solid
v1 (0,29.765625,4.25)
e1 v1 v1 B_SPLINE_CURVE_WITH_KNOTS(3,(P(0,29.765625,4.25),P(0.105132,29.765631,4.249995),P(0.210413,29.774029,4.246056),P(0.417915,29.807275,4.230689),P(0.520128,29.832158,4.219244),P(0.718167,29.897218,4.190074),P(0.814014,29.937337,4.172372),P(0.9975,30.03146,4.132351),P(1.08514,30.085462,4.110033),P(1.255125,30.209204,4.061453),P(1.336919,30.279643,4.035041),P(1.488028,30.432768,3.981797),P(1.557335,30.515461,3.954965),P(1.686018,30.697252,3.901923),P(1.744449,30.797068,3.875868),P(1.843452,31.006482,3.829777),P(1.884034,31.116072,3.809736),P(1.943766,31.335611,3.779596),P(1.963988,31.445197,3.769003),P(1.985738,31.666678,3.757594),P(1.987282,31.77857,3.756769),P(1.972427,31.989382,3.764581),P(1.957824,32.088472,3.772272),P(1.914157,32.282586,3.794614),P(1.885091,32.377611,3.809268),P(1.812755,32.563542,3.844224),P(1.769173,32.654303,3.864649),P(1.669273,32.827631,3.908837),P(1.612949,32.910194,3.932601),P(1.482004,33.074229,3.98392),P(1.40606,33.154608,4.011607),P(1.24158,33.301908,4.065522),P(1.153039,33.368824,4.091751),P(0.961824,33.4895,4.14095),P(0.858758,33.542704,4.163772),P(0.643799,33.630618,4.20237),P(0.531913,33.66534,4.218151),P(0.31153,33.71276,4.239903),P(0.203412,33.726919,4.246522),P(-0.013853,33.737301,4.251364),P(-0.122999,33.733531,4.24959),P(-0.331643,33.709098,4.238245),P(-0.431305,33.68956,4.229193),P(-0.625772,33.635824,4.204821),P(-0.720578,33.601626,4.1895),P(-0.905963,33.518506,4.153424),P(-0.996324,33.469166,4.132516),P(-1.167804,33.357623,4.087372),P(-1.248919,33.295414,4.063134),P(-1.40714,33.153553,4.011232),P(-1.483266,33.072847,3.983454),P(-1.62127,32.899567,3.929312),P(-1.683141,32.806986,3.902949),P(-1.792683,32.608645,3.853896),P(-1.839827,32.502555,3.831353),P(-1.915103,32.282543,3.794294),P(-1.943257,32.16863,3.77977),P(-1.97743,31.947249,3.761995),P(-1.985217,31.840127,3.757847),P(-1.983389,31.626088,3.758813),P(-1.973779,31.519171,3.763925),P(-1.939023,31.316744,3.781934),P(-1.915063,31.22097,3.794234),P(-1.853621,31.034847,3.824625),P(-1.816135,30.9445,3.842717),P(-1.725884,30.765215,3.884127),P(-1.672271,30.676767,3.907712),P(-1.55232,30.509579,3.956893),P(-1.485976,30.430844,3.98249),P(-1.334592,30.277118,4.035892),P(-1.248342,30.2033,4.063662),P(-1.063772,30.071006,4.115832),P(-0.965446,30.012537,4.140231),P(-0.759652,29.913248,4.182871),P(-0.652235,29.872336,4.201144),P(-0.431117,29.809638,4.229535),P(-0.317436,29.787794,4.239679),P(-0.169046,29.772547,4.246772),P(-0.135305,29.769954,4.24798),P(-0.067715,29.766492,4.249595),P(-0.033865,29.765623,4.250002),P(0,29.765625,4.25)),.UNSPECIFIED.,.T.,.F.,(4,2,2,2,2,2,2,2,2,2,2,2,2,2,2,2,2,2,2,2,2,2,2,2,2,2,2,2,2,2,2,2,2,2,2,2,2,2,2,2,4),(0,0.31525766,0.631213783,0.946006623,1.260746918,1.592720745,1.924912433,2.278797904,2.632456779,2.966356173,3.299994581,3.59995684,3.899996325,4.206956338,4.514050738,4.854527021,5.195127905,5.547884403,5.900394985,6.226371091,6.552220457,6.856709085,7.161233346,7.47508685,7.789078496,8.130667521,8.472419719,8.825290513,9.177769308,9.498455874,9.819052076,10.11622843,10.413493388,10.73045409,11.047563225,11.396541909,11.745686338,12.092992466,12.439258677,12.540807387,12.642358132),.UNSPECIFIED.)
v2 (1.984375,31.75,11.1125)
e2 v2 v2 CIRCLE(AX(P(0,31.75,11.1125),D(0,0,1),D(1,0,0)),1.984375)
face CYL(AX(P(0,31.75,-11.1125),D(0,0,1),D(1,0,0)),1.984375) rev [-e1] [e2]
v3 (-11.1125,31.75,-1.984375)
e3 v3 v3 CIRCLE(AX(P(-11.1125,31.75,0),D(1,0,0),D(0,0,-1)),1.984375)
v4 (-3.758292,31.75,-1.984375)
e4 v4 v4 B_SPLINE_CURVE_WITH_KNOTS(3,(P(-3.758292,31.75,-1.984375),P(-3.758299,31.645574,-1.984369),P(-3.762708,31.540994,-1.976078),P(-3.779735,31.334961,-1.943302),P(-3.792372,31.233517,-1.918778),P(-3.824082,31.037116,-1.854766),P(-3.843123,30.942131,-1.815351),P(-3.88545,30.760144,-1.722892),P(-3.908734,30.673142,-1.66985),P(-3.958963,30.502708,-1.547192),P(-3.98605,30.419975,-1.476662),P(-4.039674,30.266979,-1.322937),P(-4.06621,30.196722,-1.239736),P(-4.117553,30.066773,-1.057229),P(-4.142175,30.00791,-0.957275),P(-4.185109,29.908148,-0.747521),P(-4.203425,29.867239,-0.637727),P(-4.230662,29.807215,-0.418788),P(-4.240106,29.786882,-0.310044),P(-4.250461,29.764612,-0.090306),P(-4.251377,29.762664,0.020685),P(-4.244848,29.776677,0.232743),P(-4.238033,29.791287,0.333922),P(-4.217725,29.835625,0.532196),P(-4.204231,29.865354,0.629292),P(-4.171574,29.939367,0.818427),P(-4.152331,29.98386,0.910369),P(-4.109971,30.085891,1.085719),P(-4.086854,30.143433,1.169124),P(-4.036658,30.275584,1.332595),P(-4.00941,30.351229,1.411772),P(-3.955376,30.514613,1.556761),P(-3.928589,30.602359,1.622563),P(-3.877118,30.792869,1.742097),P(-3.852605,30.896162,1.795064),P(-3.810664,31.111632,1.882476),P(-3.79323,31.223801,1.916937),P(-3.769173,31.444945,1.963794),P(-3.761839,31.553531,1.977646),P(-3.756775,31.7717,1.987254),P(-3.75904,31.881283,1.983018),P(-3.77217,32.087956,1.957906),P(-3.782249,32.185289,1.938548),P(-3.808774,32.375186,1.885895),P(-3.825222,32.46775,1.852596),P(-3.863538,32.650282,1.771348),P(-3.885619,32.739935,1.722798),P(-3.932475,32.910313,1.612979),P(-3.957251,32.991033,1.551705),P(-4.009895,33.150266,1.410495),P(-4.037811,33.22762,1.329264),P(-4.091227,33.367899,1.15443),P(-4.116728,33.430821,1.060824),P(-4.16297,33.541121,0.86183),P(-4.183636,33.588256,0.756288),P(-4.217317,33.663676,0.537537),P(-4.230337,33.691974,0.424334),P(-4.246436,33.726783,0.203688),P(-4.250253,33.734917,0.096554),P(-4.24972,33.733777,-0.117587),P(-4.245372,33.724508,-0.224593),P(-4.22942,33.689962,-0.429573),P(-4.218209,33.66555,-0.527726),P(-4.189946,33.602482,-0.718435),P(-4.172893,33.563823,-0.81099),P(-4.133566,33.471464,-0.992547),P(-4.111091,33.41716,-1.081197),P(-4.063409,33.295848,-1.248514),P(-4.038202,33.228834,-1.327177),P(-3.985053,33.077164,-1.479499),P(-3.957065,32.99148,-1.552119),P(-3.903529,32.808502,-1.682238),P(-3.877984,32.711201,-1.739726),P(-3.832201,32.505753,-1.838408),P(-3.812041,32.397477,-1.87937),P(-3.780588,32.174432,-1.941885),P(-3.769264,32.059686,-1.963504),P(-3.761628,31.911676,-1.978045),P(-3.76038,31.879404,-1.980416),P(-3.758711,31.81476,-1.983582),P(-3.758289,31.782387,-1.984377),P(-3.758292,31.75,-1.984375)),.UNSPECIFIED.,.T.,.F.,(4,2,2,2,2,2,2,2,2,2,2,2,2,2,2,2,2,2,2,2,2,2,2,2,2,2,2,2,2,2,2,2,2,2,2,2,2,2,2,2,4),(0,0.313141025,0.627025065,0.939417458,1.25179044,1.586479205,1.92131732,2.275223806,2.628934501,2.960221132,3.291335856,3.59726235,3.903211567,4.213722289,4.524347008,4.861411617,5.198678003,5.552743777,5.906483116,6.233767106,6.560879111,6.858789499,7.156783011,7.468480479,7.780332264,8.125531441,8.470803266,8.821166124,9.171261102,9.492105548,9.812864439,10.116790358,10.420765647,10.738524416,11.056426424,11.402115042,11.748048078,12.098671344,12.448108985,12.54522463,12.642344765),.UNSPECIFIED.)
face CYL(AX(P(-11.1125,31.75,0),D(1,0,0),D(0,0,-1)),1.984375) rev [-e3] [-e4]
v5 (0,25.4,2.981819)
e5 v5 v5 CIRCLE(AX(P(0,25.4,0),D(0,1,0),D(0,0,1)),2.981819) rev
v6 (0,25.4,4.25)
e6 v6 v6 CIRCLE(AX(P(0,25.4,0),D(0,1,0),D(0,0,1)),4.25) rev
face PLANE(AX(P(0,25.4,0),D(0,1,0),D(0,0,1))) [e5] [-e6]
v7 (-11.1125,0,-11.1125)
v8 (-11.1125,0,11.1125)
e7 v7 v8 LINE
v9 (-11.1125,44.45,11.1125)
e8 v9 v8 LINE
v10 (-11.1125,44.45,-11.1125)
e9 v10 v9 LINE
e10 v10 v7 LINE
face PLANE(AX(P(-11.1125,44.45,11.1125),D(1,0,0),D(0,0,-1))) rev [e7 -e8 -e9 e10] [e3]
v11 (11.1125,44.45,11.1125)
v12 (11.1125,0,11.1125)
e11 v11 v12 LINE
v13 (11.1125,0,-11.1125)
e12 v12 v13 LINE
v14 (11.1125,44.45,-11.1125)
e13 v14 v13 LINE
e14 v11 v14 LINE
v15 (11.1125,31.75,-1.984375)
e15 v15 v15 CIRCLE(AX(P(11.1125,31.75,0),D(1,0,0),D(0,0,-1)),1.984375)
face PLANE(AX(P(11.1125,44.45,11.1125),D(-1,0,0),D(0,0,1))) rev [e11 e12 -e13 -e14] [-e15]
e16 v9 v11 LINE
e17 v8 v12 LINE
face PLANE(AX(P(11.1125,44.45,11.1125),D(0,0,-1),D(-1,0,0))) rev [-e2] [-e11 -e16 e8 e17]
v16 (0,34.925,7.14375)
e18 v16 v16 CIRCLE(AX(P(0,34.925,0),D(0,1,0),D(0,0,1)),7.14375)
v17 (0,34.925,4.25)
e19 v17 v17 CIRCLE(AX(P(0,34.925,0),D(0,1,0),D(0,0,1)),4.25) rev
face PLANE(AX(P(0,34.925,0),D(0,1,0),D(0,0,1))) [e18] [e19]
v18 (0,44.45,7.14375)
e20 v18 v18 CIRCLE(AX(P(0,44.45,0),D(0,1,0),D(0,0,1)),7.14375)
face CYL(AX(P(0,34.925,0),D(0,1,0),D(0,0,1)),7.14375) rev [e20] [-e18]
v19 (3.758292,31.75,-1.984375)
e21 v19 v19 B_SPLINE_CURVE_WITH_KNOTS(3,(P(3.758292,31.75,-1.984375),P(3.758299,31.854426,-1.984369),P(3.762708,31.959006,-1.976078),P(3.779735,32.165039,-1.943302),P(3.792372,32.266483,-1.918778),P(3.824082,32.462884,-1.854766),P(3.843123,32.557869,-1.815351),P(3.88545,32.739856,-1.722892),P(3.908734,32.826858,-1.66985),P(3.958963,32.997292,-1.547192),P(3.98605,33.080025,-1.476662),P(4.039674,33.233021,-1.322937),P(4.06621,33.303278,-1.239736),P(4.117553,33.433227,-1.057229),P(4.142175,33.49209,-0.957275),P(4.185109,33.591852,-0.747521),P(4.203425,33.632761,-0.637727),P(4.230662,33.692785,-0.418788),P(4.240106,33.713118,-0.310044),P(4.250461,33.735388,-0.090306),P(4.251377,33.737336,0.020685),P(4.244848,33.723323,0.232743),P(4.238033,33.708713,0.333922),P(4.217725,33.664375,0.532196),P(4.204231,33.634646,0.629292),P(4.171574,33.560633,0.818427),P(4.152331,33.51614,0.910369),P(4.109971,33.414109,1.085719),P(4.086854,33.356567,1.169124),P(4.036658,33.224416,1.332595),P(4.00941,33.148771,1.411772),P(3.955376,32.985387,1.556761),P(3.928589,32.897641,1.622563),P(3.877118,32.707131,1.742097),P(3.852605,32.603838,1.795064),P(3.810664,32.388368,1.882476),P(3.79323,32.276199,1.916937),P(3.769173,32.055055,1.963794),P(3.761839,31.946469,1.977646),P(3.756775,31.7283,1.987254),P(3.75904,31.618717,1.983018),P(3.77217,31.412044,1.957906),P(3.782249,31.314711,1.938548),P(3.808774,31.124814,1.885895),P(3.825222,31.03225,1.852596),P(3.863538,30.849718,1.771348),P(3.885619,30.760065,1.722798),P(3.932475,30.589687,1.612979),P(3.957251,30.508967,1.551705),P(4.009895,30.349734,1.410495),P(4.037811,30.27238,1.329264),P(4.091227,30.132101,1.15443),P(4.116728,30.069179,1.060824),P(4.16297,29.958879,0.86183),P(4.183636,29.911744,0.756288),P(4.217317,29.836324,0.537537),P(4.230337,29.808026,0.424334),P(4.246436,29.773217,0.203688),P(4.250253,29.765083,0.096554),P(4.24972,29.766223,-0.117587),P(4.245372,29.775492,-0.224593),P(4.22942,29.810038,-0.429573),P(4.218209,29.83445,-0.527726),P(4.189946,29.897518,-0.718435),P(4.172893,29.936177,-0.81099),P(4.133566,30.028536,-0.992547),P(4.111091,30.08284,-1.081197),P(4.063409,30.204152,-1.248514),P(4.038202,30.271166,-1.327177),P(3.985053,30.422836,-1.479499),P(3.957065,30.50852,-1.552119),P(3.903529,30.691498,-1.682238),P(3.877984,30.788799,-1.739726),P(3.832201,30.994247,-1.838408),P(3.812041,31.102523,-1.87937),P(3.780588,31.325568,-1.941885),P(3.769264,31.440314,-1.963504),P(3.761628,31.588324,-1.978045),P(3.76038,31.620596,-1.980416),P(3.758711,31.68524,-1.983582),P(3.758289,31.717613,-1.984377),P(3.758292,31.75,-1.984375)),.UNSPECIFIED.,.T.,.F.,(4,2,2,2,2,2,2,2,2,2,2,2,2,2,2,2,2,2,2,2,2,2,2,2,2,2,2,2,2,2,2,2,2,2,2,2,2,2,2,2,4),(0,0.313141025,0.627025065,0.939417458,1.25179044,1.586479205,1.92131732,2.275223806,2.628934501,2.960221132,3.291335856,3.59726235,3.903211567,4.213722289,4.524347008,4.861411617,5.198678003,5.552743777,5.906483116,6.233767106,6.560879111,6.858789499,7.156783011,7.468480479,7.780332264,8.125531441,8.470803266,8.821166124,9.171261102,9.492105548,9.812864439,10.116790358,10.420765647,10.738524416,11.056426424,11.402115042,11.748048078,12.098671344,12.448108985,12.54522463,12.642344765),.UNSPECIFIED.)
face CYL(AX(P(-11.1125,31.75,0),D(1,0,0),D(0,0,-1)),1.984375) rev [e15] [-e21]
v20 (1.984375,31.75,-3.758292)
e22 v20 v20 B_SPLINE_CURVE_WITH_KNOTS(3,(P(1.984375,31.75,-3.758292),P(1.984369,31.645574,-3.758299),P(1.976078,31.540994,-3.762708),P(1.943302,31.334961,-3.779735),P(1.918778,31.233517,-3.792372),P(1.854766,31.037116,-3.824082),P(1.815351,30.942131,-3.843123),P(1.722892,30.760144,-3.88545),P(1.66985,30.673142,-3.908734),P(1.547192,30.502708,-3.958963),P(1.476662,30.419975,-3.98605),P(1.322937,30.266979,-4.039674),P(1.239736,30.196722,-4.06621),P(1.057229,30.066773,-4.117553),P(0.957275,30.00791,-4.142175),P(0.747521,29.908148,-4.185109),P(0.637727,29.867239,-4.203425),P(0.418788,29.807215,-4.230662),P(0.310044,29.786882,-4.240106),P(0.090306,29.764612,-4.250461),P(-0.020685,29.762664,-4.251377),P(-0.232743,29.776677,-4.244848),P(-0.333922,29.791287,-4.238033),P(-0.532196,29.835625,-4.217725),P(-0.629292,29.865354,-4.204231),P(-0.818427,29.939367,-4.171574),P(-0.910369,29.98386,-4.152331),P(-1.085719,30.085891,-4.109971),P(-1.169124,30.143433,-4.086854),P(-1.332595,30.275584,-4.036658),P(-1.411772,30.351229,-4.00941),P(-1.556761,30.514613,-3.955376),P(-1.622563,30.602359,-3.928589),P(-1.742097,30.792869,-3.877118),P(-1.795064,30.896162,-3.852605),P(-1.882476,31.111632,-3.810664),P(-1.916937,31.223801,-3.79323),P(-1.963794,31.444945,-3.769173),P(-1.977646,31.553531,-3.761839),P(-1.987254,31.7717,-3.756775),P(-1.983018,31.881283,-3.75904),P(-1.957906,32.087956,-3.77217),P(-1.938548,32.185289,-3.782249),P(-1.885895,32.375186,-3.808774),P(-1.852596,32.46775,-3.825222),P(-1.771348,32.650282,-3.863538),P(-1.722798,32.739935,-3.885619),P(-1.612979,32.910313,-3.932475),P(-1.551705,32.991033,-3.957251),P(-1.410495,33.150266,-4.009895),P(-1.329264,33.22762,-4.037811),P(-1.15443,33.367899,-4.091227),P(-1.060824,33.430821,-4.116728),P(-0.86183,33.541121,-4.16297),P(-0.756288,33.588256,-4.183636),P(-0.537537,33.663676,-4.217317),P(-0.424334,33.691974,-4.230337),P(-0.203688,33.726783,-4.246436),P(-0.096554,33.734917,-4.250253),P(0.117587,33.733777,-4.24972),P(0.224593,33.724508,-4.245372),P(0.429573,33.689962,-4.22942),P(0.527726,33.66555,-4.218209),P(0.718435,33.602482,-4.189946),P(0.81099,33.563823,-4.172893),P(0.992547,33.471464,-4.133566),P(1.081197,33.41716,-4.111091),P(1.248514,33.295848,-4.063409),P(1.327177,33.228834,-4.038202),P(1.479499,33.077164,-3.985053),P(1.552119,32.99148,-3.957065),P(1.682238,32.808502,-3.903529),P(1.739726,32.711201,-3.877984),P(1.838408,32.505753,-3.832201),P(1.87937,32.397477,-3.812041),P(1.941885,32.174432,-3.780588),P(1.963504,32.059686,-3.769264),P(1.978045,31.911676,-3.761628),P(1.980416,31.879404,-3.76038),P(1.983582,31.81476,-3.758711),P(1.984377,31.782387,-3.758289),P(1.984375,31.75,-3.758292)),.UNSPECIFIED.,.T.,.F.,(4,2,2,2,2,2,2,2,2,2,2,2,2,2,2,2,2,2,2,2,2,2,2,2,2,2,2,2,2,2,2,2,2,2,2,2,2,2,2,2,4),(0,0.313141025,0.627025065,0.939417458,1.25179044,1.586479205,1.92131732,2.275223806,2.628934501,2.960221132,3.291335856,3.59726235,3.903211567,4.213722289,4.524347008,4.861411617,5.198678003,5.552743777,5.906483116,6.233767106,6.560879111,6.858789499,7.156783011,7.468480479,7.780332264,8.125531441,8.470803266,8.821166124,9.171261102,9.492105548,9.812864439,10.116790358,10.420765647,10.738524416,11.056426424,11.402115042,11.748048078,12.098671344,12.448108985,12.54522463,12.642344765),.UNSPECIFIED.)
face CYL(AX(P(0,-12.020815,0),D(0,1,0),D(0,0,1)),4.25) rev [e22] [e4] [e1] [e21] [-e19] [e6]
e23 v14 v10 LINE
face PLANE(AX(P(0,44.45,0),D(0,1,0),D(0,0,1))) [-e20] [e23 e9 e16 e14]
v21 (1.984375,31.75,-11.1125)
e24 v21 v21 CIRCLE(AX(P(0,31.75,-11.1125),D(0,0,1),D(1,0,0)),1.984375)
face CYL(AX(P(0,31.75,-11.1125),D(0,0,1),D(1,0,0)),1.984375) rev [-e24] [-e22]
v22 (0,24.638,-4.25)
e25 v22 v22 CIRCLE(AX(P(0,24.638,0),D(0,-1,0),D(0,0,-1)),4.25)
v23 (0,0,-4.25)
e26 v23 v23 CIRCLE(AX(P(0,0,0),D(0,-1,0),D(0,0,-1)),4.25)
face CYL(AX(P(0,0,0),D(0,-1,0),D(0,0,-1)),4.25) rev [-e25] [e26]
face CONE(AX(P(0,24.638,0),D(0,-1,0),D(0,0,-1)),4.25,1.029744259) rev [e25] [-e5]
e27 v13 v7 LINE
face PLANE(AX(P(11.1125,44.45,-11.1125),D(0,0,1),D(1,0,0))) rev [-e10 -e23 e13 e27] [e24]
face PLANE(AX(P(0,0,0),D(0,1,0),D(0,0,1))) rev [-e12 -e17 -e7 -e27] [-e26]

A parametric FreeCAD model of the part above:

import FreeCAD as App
import Part
import Sketcher
from FreeCAD import Vector
Q = App.Units.Quantity

doc = App.newDocument("Part")
params = doc.addObject("Spreadsheet::Sheet", "Params")
for row, (alias, value) in enumerate([
    ("sketch1_width", "0.875 in"),
    ("pad1_length", "1.75 in"),
    ("hole_diameter", "8.5 mm"),
    ("hole_depth", "0.97 in"),
    ("pocket1_length", "0.75 in"),
    ("sketch4_diameter", "0.5625 in"),
    ("pocket2_length", "0.375 in"),
    ("sketch5_diameter", "0.15625 in"),
    ("sketch6_diameter", "0.15625 in"),
], start=1):
    params.set(f"A{row}", alias)
    params.set(f"B{row}", "=" + value)
    params.setAlias(f"B{row}", alias)

body = doc.addObject("PartDesign::Body", "Body")

# Sketch on XZ plane
sketch1 = doc.addObject("Sketcher::SketchObject", "Sketch")
body.addObject(sketch1)
sketch1.AttachmentSupport = (doc.XZ_Plane, [""])
sketch1.MapMode = "FlatFace"
sketch1.addGeometry([
    Part.LineSegment(Vector(-11.1125, -11.1125, 0), Vector(-11.1125, 11.1125, 0)),
    Part.LineSegment(Vector(-11.1125, 11.1125, 0), Vector(11.1125, 11.1125, 0)),
    Part.LineSegment(Vector(11.1125, 11.1125, 0), Vector(11.1125, -11.1125, 0)),
    Part.LineSegment(Vector(11.1125, -11.1125, 0), Vector(-11.1125, -11.1125, 0)),
], False)
sketch1.addConstraint([
    Sketcher.Constraint("Coincident", 0, 2, 1, 1),
    Sketcher.Constraint("Coincident", 1, 2, 2, 1),
    Sketcher.Constraint("Coincident", 2, 2, 3, 1),
    Sketcher.Constraint("Coincident", 3, 2, 0, 1),
    Sketcher.Constraint("Vertical", 0),
    Sketcher.Constraint("Horizontal", 1),
    Sketcher.Constraint("Vertical", 2),
    Sketcher.Constraint("Horizontal", 3),
    Sketcher.Constraint("Symmetric", 0, 2, 2, 2, -1, 1),
    Sketcher.Constraint("Equal", 3, 0),
    Sketcher.Constraint("DistanceX", 1, 1, 1, 2, Q("0.875 in")),
])
sketch1.setExpression("Constraints[10]", "Params.sketch1_width")
pad1 = doc.addObject("PartDesign::Pad", "Pad")
body.addObject(pad1)
pad1.Profile = sketch1
pad1.setExpression("Length", "Params.pad1_length")
pad1.Reversed = True

# Sketch on XZ plane
sketch2 = doc.addObject("Sketcher::SketchObject", "Sketch001")
body.addObject(sketch2)
sketch2.AttachmentSupport = (doc.XZ_Plane, [""])
sketch2.MapMode = "FlatFace"
sketch2.addGeometry(Part.Circle(Vector(0, 0, 0), Vector(0, 0, 1), 4.25), False)
sketch2.addConstraint([
    Sketcher.Constraint("Coincident", 0, 3, -1, 1),
    Sketcher.Constraint("Diameter", 0, Q("8.5 mm")),
])
doc.recompute()
hole = doc.addObject("PartDesign::Hole", "Hole")
body.addObject(hole)
hole.Profile = sketch2
hole.ThreadType = "None"
hole.setExpression("Diameter", "Params.hole_diameter")
hole.DepthType = "Dimension"
hole.setExpression("Depth", "Params.hole_depth")
hole.DrillPoint = "Angled"
hole.DrillPointAngle = 118

# Sketch on XZ plane
sketch3 = doc.addObject("Sketcher::SketchObject", "Sketch002")
body.addObject(sketch3)
sketch3.AttachmentSupport = (doc.XZ_Plane, [""])
sketch3.MapMode = "FlatFace"
sketch3.AttachmentOffset = App.Placement(Vector(0, 0, -1.75 * 25.4), App.Rotation())
sketch3.addGeometry(Part.Circle(Vector(0, 0, 0), Vector(0, 0, 1), 4.25), False)
sketch3.addConstraint([
    Sketcher.Constraint("Coincident", 0, 3, -1, 1),
    Sketcher.Constraint("Diameter", 0, Q("8.5 mm")),
])
pocket1 = doc.addObject("PartDesign::Pocket", "Pocket")
body.addObject(pocket1)
pocket1.Profile = sketch3
pocket1.setExpression("Length", "Params.pocket1_length")
pocket1.Reversed = True

# Sketch on XZ plane
sketch4 = doc.addObject("Sketcher::SketchObject", "Sketch003")
body.addObject(sketch4)
sketch4.AttachmentSupport = (doc.XZ_Plane, [""])
sketch4.MapMode = "FlatFace"
sketch4.AttachmentOffset = App.Placement(Vector(0, 0, -1.75 * 25.4), App.Rotation())
sketch4.addGeometry(Part.Circle(Vector(0, 0, 0), Vector(0, 0, 1), 7.14375), False)
sketch4.addConstraint([
    Sketcher.Constraint("Coincident", 0, 3, -1, 1),
    Sketcher.Constraint("Diameter", 0, Q("0.5625 in")),
])
sketch4.setExpression("Constraints[1]", "Params.sketch4_diameter")
pocket2 = doc.addObject("PartDesign::Pocket", "Pocket001")
body.addObject(pocket2)
pocket2.Profile = sketch4
pocket2.setExpression("Length", "Params.pocket2_length")
pocket2.Reversed = True

# Sketch on YZ plane
sketch5 = doc.addObject("Sketcher::SketchObject", "Sketch004")
body.addObject(sketch5)
sketch5.AttachmentSupport = (doc.YZ_Plane, [""])
sketch5.MapMode = "FlatFace"
sketch5.AttachmentOffset = App.Placement(Vector(0, 0, 0.4375 * 25.4), App.Rotation())
sketch5.addGeometry(Part.Circle(Vector(31.75, 0, 0), Vector(0, 0, 1), 1.984375), False)
sketch5.addConstraint([
    Sketcher.Constraint("PointOnObject", 0, 3, -1),
    Sketcher.Constraint("Diameter", 0, Q("0.15625 in")),
    Sketcher.Constraint("DistanceX", -1, 1, 0, 3, Q("1.25 in")),
])
sketch5.setExpression("Constraints[1]", "Params.sketch5_diameter")
pocket3 = doc.addObject("PartDesign::Pocket", "Pocket002")
body.addObject(pocket3)
pocket3.Profile = sketch5
pocket3.Type = "ThroughAll"

# Sketch on XY plane
sketch6 = doc.addObject("Sketcher::SketchObject", "Sketch005")
body.addObject(sketch6)
sketch6.AttachmentSupport = (doc.XY_Plane, [""])
sketch6.MapMode = "FlatFace"
sketch6.AttachmentOffset = App.Placement(Vector(0, 0, 0.4375 * 25.4), App.Rotation())
sketch6.addGeometry(Part.Circle(Vector(0, 31.75, 0), Vector(0, 0, 1), 1.984375), False)
sketch6.addConstraint([
    Sketcher.Constraint("PointOnObject", 0, 3, -2),
    Sketcher.Constraint("Diameter", 0, Q("0.15625 in")),
    Sketcher.Constraint("DistanceY", -1, 1, 0, 3, Q("1.25 in")),
])
sketch6.setExpression("Constraints[1]", "Params.sketch6_diameter")
pocket4 = doc.addObject("PartDesign::Pocket", "Pocket003")
body.addObject(pocket4)
pocket4.Profile = sketch6
pocket4.Type = "ThroughAll"

doc.recompute()
